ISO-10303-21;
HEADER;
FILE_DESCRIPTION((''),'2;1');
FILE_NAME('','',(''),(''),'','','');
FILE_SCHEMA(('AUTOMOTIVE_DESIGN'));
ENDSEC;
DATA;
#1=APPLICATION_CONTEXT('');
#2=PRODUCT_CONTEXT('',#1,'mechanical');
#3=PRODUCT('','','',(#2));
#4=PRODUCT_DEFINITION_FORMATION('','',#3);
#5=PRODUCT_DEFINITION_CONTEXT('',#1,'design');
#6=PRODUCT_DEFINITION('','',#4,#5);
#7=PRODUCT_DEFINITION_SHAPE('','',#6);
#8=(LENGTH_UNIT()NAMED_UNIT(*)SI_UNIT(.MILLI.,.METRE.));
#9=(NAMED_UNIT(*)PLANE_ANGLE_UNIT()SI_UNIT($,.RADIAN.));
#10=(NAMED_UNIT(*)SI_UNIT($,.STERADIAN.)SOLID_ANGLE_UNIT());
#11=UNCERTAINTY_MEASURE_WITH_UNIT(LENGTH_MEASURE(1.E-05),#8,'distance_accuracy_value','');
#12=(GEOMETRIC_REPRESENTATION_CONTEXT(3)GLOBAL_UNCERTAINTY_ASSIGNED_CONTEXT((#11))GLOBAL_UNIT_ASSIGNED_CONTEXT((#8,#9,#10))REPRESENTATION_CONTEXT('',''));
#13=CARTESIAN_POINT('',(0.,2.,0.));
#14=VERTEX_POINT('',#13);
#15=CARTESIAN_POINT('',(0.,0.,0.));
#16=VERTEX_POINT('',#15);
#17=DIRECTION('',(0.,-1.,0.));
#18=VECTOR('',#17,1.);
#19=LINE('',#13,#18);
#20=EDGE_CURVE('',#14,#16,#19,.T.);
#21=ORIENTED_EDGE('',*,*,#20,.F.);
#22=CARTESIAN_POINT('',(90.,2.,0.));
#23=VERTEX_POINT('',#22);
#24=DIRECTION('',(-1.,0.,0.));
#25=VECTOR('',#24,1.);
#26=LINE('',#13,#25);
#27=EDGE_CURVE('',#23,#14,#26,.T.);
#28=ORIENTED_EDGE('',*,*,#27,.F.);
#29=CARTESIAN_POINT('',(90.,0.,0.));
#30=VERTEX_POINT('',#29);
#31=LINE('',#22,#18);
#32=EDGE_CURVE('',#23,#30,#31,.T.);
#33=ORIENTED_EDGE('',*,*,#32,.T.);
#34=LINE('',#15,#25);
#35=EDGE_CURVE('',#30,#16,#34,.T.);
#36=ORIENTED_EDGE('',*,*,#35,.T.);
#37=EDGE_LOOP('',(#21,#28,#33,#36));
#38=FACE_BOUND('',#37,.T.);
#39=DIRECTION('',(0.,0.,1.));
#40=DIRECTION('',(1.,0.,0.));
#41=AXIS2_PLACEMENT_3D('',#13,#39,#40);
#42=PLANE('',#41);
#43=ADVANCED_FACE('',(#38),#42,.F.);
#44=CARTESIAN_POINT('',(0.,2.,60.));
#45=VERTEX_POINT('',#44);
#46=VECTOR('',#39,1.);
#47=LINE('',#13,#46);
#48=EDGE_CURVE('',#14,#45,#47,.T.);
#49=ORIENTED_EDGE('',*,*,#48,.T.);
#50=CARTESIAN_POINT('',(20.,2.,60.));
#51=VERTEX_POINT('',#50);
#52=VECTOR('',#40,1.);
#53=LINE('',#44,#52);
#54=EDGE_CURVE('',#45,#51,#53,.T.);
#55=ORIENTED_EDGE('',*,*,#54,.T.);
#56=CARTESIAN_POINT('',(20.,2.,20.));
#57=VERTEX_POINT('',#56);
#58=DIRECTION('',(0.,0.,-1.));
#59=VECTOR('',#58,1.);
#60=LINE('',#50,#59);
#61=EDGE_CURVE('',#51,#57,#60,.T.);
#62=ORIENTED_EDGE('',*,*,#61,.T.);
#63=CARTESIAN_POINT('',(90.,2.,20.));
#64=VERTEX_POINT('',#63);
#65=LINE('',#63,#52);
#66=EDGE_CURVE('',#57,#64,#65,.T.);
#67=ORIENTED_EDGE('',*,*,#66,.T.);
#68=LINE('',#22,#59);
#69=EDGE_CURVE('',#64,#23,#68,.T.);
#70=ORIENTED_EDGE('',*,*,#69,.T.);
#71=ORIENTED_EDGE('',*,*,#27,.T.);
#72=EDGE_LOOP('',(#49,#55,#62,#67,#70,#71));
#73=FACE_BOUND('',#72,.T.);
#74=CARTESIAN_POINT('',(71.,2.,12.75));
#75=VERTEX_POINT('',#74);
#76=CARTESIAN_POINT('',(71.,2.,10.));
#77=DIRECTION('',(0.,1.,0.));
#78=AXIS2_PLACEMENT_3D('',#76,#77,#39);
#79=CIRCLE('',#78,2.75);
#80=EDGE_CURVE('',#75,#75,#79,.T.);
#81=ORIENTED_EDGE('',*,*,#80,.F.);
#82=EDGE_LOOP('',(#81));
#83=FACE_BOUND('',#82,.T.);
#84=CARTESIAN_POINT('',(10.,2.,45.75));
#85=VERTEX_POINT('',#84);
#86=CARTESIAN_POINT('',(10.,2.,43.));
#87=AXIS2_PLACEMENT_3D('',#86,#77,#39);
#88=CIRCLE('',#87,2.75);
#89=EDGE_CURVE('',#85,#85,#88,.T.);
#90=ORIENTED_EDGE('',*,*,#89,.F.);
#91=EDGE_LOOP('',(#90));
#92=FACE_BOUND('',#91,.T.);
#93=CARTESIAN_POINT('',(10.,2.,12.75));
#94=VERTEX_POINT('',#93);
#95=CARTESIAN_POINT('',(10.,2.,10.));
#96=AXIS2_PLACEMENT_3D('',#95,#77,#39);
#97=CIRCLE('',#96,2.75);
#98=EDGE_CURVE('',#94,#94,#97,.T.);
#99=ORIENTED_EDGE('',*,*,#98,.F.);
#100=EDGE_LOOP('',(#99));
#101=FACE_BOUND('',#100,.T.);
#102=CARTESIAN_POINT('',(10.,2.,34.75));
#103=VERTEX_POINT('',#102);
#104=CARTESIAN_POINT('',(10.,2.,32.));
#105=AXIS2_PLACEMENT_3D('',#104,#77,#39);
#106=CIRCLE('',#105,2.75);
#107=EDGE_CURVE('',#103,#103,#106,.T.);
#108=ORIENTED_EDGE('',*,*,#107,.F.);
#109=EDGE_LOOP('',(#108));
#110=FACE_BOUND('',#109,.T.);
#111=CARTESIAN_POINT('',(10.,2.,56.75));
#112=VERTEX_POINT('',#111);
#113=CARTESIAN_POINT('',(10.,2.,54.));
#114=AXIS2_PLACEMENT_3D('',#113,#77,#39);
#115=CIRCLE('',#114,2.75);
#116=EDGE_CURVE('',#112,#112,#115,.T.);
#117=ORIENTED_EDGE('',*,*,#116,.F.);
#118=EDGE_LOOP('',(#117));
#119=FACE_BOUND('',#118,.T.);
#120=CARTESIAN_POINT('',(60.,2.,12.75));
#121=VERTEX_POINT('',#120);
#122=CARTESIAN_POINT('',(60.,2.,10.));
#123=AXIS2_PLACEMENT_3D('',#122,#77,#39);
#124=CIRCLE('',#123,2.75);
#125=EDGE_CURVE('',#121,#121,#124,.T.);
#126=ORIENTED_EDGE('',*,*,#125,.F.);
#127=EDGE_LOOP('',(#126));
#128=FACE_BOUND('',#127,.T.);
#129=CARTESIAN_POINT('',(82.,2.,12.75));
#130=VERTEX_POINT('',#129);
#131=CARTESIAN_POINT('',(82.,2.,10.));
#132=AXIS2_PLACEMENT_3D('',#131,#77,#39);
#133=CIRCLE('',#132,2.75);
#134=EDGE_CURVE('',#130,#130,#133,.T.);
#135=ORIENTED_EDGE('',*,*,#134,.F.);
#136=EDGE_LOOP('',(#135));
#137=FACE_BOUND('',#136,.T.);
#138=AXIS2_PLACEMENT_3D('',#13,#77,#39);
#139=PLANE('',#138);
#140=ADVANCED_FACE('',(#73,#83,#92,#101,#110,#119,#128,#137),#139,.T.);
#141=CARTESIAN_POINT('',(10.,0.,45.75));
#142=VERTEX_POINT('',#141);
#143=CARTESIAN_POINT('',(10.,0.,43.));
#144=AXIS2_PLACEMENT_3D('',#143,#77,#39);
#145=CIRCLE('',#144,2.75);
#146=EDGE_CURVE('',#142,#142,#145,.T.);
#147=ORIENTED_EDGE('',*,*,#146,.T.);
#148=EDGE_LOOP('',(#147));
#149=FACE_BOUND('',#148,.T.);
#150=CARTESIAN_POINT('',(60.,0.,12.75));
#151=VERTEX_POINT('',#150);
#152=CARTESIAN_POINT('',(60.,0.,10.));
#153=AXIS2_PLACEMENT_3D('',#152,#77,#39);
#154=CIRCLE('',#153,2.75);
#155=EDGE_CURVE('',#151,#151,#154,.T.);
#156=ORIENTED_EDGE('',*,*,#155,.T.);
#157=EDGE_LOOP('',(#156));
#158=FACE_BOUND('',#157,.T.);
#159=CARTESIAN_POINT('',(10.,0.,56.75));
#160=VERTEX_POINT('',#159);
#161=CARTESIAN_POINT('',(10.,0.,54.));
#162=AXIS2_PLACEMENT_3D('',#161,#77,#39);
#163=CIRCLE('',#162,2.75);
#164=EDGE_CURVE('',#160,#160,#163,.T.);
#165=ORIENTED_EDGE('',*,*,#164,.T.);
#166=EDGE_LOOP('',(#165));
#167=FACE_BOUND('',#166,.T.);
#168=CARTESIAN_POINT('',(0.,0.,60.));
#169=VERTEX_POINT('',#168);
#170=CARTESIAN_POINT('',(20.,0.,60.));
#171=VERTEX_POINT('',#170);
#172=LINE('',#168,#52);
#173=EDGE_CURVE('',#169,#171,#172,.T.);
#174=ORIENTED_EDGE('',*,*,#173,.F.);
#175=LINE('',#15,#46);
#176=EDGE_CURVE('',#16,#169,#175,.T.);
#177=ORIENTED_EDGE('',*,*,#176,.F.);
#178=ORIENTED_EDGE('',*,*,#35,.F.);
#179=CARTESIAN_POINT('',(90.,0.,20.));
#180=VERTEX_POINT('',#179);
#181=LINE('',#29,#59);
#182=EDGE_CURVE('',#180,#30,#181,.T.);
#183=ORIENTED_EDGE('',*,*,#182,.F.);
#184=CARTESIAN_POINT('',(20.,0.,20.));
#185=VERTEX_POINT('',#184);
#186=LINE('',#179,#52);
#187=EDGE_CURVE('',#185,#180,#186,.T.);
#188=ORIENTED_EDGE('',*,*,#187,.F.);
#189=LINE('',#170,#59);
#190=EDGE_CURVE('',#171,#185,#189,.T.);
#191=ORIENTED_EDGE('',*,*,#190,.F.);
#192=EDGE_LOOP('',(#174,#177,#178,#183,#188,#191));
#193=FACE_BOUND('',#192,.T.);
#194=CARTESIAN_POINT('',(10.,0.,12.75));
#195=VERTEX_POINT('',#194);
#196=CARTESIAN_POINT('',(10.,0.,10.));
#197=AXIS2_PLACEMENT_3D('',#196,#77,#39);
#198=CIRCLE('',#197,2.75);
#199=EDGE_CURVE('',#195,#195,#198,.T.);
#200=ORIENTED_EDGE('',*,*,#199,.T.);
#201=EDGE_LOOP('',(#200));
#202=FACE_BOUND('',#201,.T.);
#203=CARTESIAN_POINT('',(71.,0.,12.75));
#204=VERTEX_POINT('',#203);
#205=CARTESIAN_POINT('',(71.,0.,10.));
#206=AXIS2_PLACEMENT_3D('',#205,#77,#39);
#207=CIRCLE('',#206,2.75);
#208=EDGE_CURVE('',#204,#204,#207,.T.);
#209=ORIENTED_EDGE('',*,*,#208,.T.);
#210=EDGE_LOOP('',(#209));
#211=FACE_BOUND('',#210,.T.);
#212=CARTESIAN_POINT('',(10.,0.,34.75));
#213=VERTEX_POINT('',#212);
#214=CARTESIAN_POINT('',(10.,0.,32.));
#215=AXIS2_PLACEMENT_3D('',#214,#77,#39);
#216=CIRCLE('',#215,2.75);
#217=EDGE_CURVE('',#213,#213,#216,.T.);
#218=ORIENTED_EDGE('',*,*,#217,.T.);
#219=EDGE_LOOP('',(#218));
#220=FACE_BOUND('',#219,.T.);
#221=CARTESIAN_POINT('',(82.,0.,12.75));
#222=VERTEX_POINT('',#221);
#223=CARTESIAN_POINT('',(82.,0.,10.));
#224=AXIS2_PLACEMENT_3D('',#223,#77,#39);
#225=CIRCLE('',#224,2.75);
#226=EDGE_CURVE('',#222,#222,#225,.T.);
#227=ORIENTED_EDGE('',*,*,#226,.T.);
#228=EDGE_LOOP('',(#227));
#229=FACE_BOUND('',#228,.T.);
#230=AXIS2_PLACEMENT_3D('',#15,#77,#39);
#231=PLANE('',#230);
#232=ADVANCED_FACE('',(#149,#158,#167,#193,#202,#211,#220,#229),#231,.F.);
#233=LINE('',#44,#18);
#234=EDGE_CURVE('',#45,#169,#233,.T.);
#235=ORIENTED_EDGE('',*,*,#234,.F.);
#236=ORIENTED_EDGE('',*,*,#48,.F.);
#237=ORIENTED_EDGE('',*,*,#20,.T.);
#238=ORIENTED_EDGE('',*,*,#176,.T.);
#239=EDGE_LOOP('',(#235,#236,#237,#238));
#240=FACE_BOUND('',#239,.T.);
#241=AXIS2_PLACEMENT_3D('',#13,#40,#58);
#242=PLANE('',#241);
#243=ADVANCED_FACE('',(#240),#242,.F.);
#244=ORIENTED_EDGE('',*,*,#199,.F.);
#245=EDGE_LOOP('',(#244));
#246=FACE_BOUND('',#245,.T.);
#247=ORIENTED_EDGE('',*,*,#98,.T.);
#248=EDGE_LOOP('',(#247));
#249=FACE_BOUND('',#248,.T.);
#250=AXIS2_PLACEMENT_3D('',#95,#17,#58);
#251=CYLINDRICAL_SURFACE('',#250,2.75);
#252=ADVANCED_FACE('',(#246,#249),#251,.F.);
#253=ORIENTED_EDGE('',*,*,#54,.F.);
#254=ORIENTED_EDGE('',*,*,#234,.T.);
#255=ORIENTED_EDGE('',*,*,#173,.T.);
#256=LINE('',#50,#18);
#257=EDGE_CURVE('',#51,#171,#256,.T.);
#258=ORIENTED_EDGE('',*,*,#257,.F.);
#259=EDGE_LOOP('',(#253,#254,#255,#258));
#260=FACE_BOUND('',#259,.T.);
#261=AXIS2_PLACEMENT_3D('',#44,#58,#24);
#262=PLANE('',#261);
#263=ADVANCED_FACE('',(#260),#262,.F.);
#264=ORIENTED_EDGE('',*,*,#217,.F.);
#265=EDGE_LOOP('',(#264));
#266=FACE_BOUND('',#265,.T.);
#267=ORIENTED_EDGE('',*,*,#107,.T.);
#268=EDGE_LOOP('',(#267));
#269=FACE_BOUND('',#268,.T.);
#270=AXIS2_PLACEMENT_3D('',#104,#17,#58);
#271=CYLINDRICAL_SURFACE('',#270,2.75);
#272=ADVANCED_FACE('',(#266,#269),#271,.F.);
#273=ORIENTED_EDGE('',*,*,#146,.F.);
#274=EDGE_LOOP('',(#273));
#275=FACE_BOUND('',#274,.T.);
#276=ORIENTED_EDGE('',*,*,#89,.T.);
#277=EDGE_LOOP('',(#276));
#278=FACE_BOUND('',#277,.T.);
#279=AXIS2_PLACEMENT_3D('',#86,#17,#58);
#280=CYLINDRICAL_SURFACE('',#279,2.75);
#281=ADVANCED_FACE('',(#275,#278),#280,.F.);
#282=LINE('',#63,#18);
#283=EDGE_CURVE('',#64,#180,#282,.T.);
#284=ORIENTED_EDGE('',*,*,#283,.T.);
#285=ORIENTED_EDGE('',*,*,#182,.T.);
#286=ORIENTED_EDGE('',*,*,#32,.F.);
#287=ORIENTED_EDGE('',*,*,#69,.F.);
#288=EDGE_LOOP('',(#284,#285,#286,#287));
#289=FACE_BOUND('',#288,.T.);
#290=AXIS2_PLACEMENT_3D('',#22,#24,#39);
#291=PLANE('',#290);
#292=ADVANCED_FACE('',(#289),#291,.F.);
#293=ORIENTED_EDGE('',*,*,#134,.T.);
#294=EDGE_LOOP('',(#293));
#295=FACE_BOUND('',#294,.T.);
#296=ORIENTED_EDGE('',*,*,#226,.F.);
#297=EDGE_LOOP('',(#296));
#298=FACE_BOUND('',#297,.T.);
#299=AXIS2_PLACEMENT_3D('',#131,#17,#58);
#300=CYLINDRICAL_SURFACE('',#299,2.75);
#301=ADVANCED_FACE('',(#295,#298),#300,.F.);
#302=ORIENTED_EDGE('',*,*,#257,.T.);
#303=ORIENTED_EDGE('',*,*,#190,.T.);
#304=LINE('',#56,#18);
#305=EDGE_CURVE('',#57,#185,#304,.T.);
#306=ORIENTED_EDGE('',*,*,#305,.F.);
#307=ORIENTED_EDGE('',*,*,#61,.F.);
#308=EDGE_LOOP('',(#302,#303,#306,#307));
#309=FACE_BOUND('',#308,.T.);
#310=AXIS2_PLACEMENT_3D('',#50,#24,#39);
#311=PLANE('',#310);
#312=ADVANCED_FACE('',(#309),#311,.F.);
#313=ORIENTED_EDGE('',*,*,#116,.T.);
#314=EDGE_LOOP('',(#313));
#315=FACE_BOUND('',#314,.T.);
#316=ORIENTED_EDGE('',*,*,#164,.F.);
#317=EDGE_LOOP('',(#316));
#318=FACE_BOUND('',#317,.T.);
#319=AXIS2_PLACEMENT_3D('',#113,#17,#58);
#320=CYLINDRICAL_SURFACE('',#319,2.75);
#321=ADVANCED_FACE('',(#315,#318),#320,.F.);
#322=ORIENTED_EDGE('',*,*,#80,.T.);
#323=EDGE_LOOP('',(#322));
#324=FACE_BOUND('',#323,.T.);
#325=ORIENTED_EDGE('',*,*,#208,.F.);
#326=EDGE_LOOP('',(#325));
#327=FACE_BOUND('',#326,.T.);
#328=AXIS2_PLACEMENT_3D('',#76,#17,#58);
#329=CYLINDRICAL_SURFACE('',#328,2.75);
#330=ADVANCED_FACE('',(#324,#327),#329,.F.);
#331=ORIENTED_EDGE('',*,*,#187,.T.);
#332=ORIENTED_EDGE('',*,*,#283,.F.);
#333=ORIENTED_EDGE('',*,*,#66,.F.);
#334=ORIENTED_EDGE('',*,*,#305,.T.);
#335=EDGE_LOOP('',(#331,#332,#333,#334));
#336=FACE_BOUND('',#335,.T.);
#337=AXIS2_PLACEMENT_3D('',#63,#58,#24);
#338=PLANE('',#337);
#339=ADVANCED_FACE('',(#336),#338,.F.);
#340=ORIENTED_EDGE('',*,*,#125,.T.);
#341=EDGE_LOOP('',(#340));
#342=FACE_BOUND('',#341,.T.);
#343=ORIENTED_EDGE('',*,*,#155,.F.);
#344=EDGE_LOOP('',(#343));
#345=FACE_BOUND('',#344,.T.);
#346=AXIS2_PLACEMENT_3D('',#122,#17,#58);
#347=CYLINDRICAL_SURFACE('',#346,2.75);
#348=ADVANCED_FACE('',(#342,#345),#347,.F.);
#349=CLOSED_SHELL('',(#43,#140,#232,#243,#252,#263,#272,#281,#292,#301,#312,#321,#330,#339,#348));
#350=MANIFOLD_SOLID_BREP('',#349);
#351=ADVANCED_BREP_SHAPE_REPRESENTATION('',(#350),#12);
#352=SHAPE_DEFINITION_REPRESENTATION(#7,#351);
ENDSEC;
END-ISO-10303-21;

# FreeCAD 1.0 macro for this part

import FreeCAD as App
import Part
import Sketcher
from FreeCAD import Vector

doc = App.newDocument("Part")
body = doc.addObject("PartDesign::Body", "Body")

sketch1 = body.newObject("Sketcher::SketchObject", "Sketch")
sketch1.AttachmentSupport = (doc.getObject("XZ_Plane"), [""])
sketch1.MapMode = "FlatFace"
sketch1.addGeometry(Part.LineSegment(Vector(90, 0, 0), Vector(0, 0, 0)), False)
sketch1.addGeometry(Part.LineSegment(Vector(0, 0, 0), Vector(0, 60, 0)), False)
sketch1.addGeometry(Part.LineSegment(Vector(0, 60, 0), Vector(20, 60, 0)), False)
sketch1.addGeometry(Part.LineSegment(Vector(20, 60, 0), Vector(20, 20, 0)), False)
sketch1.addGeometry(Part.LineSegment(Vector(20, 20, 0), Vector(90, 20, 0)), False)
sketch1.addGeometry(Part.LineSegment(Vector(90, 20, 0), Vector(90, 0, 0)), False)
sketch1.addGeometry(Part.Circle(Vector(10, 54, 0), Vector(0, 0, 1), 2.8), False)
sketch1.addGeometry(Part.Circle(Vector(10, 43, 0), Vector(0, 0, 1), 2.8), False)
sketch1.addGeometry(Part.Circle(Vector(10, 32, 0), Vector(0, 0, 1), 2.8), False)
sketch1.addGeometry(Part.Circle(Vector(82, 10, 0), Vector(0, 0, 1), 2.8), False)
sketch1.addGeometry(Part.Circle(Vector(71, 10, 0), Vector(0, 0, 1), 2.8), False)
sketch1.addGeometry(Part.Circle(Vector(60, 10, 0), Vector(0, 0, 1), 2.8), False)
sketch1.addGeometry(Part.Circle(Vector(10, 10, 0), Vector(0, 0, 1), 2.8), False)
sketch1.addConstraint(Sketcher.Constraint("Coincident", 0, 2, 1, 1))
sketch1.addConstraint(Sketcher.Constraint("Coincident", 1, 2, 2, 1))
sketch1.addConstraint(Sketcher.Constraint("Coincident", 2, 2, 3, 1))
sketch1.addConstraint(Sketcher.Constraint("Coincident", 3, 2, 4, 1))
sketch1.addConstraint(Sketcher.Constraint("Coincident", 4, 2, 5, 1))
sketch1.addConstraint(Sketcher.Constraint("Coincident", 5, 2, 0, 1))
sketch1.addConstraint(Sketcher.Constraint("Horizontal", 0))
sketch1.addConstraint(Sketcher.Constraint("Vertical", 1))
sketch1.addConstraint(Sketcher.Constraint("Horizontal", 2))
sketch1.addConstraint(Sketcher.Constraint("Vertical", 3))
sketch1.addConstraint(Sketcher.Constraint("Horizontal", 4))
sketch1.addConstraint(Sketcher.Constraint("Vertical", 5))
sketch1.addConstraint(Sketcher.Constraint("Coincident", 0, 2, -1, 1))
sketch1.addConstraint(Sketcher.Constraint("Equal", 6, 7))
sketch1.addConstraint(Sketcher.Constraint("Equal", 7, 8))
sketch1.addConstraint(Sketcher.Constraint("Equal", 8, 9))
sketch1.addConstraint(Sketcher.Constraint("Equal", 9, 10))
sketch1.addConstraint(Sketcher.Constraint("Equal", 10, 11))
sketch1.addConstraint(Sketcher.Constraint("Equal", 11, 12))
sketch1.addConstraint(Sketcher.Constraint("Horizontal", 9, 3, 10, 3))
sketch1.addConstraint(Sketcher.Constraint("Horizontal", 10, 3, 11, 3))
sketch1.addConstraint(Sketcher.Constraint("Horizontal", 11, 3, 12, 3))
sketch1.addConstraint(Sketcher.Constraint("Vertical", 6, 3, 7, 3))
sketch1.addConstraint(Sketcher.Constraint("Vertical", 7, 3, 8, 3))
sketch1.addConstraint(Sketcher.Constraint("Vertical", 8, 3, 12, 3))
sketch1.addConstraint(Sketcher.Constraint("Equal", 2, 5))
sketch1.addConstraint(Sketcher.Constraint("Diameter", 6, 5.5))
sketch1.addConstraint(Sketcher.Constraint("DistanceX", 0, 2, 0, 1, 90.0))
sketch1.addConstraint(Sketcher.Constraint("DistanceX", 2, 1, 2, 2, 20.0))
sketch1.addConstraint(Sketcher.Constraint("DistanceY", 1, 1, 1, 2, 60.0))
sketch1.addConstraint(Sketcher.Constraint("DistanceX", -1, 1, 6, 3, 10.0))
sketch1.addConstraint(Sketcher.Constraint("DistanceY", -1, 1, 6, 3, 54.0))
sketch1.addConstraint(Sketcher.Constraint("DistanceY", -1, 1, 7, 3, 43.0))
sketch1.addConstraint(Sketcher.Constraint("DistanceY", -1, 1, 8, 3, 32.0))
sketch1.addConstraint(Sketcher.Constraint("DistanceX", -1, 1, 9, 3, 82.0))
sketch1.addConstraint(Sketcher.Constraint("DistanceY", -1, 1, 9, 3, 10.0))
sketch1.addConstraint(Sketcher.Constraint("DistanceX", -1, 1, 10, 3, 71.0))
sketch1.addConstraint(Sketcher.Constraint("DistanceX", -1, 1, 11, 3, 60.0))
pad1 = body.newObject("PartDesign::Pad", "Pad")
pad1.Profile = sketch1
pad1.Length = 2
pad1.Reversed = True

doc.recompute()
